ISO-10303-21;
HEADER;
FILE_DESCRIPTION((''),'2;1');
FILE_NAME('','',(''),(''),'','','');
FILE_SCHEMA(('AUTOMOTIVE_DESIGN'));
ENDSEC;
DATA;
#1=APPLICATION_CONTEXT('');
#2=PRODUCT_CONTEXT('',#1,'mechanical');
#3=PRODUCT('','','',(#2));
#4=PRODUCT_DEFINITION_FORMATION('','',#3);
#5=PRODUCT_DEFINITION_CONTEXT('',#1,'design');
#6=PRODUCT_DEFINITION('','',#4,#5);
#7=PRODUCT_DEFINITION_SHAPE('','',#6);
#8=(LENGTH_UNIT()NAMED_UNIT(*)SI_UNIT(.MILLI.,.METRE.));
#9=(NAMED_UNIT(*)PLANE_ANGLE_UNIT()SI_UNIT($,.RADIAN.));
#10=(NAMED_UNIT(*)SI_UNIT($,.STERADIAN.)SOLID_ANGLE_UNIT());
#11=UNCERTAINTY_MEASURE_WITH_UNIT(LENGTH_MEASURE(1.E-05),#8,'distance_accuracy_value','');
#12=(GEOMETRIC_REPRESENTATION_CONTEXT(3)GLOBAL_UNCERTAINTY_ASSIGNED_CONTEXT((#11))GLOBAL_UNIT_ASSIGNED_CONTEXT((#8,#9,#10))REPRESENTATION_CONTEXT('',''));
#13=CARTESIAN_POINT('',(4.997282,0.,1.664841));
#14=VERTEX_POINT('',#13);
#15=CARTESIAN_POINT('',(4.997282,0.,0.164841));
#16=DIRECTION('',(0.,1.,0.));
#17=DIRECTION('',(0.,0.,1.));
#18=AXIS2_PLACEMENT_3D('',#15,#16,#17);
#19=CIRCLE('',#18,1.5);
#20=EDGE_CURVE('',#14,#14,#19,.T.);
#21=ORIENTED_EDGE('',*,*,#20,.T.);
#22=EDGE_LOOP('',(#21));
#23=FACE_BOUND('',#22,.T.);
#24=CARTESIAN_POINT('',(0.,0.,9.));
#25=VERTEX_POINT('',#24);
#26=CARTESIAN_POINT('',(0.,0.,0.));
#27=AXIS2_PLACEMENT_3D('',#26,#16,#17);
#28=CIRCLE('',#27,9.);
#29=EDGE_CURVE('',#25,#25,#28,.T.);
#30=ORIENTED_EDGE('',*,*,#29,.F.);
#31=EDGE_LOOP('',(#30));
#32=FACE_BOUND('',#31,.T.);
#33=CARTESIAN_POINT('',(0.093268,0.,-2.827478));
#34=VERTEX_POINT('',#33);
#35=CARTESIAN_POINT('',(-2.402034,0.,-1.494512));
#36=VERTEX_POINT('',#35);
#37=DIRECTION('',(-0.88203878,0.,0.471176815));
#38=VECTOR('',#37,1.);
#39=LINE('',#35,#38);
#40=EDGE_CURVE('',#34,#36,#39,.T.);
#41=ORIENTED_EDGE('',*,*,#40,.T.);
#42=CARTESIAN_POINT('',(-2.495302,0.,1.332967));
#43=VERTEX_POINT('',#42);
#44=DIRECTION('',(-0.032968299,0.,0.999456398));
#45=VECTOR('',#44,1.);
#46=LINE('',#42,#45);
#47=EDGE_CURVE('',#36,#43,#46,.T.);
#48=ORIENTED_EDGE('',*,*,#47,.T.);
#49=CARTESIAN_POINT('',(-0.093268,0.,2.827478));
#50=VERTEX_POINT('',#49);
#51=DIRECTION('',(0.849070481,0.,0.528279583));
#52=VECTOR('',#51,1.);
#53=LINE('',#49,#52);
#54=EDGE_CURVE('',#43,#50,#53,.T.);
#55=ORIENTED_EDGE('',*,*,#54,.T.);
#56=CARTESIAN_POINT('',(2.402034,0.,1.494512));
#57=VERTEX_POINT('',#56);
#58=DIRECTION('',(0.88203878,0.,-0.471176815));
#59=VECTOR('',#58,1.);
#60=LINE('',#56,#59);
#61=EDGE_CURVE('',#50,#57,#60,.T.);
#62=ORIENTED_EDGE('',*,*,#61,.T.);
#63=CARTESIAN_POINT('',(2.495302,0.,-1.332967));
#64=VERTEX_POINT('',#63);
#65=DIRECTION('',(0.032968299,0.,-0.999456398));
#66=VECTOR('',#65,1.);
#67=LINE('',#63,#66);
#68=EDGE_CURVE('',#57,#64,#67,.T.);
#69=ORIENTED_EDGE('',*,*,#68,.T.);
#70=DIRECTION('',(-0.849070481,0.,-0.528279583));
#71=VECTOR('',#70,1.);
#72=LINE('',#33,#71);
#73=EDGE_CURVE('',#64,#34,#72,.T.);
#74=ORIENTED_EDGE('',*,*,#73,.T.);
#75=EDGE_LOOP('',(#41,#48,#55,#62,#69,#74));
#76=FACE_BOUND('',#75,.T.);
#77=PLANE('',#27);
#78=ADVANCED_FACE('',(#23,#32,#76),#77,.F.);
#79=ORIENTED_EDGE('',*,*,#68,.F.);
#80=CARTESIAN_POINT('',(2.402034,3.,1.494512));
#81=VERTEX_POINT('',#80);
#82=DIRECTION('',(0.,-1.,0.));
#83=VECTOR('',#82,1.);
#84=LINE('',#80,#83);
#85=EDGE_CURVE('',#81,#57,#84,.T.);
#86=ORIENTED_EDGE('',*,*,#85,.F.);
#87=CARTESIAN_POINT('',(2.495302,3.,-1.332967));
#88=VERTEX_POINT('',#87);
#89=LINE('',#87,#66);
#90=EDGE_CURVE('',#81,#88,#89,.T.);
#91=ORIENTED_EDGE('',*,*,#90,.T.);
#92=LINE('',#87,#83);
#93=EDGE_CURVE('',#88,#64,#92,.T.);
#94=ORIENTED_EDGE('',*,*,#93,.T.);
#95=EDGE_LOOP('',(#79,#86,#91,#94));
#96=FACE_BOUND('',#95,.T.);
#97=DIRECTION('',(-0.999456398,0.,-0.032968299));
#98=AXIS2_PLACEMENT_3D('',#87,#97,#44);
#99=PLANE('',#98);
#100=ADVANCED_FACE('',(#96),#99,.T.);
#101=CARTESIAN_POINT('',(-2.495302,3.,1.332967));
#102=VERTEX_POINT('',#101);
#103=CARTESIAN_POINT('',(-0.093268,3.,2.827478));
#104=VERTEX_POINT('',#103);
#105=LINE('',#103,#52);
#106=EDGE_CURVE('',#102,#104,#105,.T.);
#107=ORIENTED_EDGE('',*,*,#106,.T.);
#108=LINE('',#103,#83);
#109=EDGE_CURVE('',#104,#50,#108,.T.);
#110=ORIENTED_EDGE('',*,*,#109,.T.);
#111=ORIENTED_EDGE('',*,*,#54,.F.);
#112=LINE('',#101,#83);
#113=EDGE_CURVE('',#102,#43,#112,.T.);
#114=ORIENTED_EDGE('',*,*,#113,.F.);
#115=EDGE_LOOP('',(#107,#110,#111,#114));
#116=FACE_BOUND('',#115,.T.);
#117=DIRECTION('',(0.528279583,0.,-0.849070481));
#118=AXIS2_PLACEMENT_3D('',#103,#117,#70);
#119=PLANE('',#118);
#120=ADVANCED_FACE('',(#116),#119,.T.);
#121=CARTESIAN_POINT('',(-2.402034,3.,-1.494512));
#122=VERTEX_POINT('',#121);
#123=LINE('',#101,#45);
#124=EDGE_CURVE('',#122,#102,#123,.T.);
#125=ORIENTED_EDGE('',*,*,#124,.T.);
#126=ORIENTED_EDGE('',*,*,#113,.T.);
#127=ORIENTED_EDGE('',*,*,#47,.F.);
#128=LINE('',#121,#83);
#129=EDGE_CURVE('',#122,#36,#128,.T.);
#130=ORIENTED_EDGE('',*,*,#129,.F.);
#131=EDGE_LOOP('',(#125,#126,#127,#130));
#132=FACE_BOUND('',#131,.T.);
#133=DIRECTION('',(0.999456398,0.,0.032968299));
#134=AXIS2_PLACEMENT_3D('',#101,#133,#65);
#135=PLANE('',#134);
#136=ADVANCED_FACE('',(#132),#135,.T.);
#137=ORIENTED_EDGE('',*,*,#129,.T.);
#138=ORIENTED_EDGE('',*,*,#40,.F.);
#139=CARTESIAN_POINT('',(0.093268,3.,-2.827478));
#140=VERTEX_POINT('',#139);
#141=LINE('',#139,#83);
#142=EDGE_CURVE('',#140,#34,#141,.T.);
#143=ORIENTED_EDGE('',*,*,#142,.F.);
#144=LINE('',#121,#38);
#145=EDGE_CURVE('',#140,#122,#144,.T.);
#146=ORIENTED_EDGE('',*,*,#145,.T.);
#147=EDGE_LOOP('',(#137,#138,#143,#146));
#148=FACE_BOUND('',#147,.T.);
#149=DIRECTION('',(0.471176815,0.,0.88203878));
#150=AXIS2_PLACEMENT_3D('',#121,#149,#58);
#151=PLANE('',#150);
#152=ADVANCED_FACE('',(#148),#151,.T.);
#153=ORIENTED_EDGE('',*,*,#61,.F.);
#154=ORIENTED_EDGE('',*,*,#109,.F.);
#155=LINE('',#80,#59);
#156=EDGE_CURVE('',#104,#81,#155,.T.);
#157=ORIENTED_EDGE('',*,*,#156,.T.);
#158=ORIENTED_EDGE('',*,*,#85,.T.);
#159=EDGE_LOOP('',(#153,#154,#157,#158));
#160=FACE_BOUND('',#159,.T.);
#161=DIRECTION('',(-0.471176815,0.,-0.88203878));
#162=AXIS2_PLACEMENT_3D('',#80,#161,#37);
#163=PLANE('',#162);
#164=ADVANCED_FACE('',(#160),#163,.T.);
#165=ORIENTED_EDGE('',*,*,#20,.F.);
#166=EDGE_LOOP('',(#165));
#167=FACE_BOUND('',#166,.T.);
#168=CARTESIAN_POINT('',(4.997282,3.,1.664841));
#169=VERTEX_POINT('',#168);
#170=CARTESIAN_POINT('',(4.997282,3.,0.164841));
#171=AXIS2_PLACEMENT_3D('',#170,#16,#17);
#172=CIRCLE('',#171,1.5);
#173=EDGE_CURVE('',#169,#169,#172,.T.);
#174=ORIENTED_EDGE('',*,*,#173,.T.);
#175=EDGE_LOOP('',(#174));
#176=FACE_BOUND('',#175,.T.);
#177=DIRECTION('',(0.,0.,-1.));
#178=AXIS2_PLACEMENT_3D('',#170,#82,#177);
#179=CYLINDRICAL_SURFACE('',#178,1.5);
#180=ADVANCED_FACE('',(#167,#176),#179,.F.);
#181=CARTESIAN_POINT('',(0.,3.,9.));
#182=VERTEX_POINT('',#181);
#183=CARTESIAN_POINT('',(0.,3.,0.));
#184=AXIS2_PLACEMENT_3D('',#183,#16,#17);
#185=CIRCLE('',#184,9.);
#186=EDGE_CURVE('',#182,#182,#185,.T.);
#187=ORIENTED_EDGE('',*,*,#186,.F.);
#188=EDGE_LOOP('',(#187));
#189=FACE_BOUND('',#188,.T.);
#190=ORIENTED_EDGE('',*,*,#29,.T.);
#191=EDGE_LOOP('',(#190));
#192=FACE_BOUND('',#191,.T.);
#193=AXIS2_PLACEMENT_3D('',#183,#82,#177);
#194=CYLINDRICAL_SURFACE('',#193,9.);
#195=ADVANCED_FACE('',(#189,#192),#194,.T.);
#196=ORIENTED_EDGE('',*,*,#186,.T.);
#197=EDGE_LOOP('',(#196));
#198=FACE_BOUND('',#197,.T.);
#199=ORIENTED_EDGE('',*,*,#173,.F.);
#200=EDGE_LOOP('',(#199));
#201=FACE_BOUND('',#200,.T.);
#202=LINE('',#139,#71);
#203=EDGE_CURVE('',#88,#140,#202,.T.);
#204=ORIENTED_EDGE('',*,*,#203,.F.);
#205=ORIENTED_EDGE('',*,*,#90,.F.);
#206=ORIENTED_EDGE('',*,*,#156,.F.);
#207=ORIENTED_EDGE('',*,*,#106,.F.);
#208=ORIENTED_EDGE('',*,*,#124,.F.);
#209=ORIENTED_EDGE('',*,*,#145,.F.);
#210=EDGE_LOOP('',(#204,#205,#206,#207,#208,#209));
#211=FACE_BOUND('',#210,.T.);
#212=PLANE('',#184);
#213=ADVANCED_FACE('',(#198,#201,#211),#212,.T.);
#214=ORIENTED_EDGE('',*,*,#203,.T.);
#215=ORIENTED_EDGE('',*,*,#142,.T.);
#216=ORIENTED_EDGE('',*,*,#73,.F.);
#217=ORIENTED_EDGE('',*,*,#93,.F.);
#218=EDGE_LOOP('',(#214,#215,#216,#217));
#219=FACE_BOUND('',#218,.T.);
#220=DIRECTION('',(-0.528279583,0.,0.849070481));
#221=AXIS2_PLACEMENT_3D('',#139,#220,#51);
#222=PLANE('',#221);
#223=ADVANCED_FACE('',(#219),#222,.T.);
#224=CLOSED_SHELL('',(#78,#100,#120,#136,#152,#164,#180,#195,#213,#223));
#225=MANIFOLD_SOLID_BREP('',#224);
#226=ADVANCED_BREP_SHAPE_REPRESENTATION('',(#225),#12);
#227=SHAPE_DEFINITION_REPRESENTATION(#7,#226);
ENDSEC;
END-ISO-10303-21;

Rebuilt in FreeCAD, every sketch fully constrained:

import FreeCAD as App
import Part
import Sketcher
from FreeCAD import Vector


def add_polygon(sketch, points):
    """Adds a closed chain of lines whose ends are joined by coincident constraints."""
    first, n = sketch.GeometryCount, len(points)
    for a, b in zip(points, points[1:] + points[:1]):
        sketch.addGeometry(Part.LineSegment(App.Vector(*a, 0), App.Vector(*b, 0)), False)
    for i in range(n):
        sketch.addConstraint(Sketcher.Constraint("Coincident", first + i, 2, first + (i + 1) % n, 1))

doc = App.newDocument("Part")
body = doc.addObject("PartDesign::Body", "Body")

# Sketch on XZ plane
sketch1 = body.newObject("Sketcher::SketchObject", "Sketch")
sketch1.AttachmentSupport = (doc.getObject("XZ_Plane"), [""])
sketch1.MapMode = "FlatFace"
sketch1.addGeometry(Part.Circle(Vector(0, 0, 0), Vector(0, 0, 1), 9), False)  # 0
sketch1.addGeometry(Part.Circle(Vector(5, 0.2, 0), Vector(0, 0, 1), 1.5), False)  # 1
add_polygon(sketch1, [(0.1, -2.8), (2.5, -1.3), (2.4, 1.5), (-0.1, 2.8), (-2.5, 1.3), (-2.4, -1.5)])  # lines 2-7
sketch1.addConstraint([
    Sketcher.Constraint("Coincident", 0, 3, -1, 1),
    Sketcher.Constraint("Symmetric", 2, 2, 5, 2, -1, 1),
    Sketcher.Constraint("Symmetric", 3, 2, 6, 2, -1, 1),
    Sketcher.Constraint("Symmetric", 4, 2, 7, 2, -1, 1),
    Sketcher.Constraint("Equal", 2, 3),
    Sketcher.Constraint("Equal", 3, 4),
    Sketcher.Constraint("Diameter", 0, 18.0),
    Sketcher.Constraint("Diameter", 1, 3.0),
    Sketcher.Constraint("DistanceX", -1, 1, 1, 3, 4.997282),
    Sketcher.Constraint("DistanceY", -1, 1, 1, 3, 0.164841),
    Sketcher.Constraint("DistanceY", -1, 1, 3, 2, 1.494512),
    Sketcher.Constraint("DistanceY", -1, 1, 4, 2, 2.827478),
    Sketcher.Constraint("DistanceX", 2, 2, 1, 3, 2.50198),
    Sketcher.Constraint("DistanceY", 2, 2, 1, 3, 1.497808),
])
pad1 = body.newObject("PartDesign::Pad", "Pad")
pad1.Profile = sketch1
pad1.Length = 3
pad1.Reversed = True

doc.recompute()
